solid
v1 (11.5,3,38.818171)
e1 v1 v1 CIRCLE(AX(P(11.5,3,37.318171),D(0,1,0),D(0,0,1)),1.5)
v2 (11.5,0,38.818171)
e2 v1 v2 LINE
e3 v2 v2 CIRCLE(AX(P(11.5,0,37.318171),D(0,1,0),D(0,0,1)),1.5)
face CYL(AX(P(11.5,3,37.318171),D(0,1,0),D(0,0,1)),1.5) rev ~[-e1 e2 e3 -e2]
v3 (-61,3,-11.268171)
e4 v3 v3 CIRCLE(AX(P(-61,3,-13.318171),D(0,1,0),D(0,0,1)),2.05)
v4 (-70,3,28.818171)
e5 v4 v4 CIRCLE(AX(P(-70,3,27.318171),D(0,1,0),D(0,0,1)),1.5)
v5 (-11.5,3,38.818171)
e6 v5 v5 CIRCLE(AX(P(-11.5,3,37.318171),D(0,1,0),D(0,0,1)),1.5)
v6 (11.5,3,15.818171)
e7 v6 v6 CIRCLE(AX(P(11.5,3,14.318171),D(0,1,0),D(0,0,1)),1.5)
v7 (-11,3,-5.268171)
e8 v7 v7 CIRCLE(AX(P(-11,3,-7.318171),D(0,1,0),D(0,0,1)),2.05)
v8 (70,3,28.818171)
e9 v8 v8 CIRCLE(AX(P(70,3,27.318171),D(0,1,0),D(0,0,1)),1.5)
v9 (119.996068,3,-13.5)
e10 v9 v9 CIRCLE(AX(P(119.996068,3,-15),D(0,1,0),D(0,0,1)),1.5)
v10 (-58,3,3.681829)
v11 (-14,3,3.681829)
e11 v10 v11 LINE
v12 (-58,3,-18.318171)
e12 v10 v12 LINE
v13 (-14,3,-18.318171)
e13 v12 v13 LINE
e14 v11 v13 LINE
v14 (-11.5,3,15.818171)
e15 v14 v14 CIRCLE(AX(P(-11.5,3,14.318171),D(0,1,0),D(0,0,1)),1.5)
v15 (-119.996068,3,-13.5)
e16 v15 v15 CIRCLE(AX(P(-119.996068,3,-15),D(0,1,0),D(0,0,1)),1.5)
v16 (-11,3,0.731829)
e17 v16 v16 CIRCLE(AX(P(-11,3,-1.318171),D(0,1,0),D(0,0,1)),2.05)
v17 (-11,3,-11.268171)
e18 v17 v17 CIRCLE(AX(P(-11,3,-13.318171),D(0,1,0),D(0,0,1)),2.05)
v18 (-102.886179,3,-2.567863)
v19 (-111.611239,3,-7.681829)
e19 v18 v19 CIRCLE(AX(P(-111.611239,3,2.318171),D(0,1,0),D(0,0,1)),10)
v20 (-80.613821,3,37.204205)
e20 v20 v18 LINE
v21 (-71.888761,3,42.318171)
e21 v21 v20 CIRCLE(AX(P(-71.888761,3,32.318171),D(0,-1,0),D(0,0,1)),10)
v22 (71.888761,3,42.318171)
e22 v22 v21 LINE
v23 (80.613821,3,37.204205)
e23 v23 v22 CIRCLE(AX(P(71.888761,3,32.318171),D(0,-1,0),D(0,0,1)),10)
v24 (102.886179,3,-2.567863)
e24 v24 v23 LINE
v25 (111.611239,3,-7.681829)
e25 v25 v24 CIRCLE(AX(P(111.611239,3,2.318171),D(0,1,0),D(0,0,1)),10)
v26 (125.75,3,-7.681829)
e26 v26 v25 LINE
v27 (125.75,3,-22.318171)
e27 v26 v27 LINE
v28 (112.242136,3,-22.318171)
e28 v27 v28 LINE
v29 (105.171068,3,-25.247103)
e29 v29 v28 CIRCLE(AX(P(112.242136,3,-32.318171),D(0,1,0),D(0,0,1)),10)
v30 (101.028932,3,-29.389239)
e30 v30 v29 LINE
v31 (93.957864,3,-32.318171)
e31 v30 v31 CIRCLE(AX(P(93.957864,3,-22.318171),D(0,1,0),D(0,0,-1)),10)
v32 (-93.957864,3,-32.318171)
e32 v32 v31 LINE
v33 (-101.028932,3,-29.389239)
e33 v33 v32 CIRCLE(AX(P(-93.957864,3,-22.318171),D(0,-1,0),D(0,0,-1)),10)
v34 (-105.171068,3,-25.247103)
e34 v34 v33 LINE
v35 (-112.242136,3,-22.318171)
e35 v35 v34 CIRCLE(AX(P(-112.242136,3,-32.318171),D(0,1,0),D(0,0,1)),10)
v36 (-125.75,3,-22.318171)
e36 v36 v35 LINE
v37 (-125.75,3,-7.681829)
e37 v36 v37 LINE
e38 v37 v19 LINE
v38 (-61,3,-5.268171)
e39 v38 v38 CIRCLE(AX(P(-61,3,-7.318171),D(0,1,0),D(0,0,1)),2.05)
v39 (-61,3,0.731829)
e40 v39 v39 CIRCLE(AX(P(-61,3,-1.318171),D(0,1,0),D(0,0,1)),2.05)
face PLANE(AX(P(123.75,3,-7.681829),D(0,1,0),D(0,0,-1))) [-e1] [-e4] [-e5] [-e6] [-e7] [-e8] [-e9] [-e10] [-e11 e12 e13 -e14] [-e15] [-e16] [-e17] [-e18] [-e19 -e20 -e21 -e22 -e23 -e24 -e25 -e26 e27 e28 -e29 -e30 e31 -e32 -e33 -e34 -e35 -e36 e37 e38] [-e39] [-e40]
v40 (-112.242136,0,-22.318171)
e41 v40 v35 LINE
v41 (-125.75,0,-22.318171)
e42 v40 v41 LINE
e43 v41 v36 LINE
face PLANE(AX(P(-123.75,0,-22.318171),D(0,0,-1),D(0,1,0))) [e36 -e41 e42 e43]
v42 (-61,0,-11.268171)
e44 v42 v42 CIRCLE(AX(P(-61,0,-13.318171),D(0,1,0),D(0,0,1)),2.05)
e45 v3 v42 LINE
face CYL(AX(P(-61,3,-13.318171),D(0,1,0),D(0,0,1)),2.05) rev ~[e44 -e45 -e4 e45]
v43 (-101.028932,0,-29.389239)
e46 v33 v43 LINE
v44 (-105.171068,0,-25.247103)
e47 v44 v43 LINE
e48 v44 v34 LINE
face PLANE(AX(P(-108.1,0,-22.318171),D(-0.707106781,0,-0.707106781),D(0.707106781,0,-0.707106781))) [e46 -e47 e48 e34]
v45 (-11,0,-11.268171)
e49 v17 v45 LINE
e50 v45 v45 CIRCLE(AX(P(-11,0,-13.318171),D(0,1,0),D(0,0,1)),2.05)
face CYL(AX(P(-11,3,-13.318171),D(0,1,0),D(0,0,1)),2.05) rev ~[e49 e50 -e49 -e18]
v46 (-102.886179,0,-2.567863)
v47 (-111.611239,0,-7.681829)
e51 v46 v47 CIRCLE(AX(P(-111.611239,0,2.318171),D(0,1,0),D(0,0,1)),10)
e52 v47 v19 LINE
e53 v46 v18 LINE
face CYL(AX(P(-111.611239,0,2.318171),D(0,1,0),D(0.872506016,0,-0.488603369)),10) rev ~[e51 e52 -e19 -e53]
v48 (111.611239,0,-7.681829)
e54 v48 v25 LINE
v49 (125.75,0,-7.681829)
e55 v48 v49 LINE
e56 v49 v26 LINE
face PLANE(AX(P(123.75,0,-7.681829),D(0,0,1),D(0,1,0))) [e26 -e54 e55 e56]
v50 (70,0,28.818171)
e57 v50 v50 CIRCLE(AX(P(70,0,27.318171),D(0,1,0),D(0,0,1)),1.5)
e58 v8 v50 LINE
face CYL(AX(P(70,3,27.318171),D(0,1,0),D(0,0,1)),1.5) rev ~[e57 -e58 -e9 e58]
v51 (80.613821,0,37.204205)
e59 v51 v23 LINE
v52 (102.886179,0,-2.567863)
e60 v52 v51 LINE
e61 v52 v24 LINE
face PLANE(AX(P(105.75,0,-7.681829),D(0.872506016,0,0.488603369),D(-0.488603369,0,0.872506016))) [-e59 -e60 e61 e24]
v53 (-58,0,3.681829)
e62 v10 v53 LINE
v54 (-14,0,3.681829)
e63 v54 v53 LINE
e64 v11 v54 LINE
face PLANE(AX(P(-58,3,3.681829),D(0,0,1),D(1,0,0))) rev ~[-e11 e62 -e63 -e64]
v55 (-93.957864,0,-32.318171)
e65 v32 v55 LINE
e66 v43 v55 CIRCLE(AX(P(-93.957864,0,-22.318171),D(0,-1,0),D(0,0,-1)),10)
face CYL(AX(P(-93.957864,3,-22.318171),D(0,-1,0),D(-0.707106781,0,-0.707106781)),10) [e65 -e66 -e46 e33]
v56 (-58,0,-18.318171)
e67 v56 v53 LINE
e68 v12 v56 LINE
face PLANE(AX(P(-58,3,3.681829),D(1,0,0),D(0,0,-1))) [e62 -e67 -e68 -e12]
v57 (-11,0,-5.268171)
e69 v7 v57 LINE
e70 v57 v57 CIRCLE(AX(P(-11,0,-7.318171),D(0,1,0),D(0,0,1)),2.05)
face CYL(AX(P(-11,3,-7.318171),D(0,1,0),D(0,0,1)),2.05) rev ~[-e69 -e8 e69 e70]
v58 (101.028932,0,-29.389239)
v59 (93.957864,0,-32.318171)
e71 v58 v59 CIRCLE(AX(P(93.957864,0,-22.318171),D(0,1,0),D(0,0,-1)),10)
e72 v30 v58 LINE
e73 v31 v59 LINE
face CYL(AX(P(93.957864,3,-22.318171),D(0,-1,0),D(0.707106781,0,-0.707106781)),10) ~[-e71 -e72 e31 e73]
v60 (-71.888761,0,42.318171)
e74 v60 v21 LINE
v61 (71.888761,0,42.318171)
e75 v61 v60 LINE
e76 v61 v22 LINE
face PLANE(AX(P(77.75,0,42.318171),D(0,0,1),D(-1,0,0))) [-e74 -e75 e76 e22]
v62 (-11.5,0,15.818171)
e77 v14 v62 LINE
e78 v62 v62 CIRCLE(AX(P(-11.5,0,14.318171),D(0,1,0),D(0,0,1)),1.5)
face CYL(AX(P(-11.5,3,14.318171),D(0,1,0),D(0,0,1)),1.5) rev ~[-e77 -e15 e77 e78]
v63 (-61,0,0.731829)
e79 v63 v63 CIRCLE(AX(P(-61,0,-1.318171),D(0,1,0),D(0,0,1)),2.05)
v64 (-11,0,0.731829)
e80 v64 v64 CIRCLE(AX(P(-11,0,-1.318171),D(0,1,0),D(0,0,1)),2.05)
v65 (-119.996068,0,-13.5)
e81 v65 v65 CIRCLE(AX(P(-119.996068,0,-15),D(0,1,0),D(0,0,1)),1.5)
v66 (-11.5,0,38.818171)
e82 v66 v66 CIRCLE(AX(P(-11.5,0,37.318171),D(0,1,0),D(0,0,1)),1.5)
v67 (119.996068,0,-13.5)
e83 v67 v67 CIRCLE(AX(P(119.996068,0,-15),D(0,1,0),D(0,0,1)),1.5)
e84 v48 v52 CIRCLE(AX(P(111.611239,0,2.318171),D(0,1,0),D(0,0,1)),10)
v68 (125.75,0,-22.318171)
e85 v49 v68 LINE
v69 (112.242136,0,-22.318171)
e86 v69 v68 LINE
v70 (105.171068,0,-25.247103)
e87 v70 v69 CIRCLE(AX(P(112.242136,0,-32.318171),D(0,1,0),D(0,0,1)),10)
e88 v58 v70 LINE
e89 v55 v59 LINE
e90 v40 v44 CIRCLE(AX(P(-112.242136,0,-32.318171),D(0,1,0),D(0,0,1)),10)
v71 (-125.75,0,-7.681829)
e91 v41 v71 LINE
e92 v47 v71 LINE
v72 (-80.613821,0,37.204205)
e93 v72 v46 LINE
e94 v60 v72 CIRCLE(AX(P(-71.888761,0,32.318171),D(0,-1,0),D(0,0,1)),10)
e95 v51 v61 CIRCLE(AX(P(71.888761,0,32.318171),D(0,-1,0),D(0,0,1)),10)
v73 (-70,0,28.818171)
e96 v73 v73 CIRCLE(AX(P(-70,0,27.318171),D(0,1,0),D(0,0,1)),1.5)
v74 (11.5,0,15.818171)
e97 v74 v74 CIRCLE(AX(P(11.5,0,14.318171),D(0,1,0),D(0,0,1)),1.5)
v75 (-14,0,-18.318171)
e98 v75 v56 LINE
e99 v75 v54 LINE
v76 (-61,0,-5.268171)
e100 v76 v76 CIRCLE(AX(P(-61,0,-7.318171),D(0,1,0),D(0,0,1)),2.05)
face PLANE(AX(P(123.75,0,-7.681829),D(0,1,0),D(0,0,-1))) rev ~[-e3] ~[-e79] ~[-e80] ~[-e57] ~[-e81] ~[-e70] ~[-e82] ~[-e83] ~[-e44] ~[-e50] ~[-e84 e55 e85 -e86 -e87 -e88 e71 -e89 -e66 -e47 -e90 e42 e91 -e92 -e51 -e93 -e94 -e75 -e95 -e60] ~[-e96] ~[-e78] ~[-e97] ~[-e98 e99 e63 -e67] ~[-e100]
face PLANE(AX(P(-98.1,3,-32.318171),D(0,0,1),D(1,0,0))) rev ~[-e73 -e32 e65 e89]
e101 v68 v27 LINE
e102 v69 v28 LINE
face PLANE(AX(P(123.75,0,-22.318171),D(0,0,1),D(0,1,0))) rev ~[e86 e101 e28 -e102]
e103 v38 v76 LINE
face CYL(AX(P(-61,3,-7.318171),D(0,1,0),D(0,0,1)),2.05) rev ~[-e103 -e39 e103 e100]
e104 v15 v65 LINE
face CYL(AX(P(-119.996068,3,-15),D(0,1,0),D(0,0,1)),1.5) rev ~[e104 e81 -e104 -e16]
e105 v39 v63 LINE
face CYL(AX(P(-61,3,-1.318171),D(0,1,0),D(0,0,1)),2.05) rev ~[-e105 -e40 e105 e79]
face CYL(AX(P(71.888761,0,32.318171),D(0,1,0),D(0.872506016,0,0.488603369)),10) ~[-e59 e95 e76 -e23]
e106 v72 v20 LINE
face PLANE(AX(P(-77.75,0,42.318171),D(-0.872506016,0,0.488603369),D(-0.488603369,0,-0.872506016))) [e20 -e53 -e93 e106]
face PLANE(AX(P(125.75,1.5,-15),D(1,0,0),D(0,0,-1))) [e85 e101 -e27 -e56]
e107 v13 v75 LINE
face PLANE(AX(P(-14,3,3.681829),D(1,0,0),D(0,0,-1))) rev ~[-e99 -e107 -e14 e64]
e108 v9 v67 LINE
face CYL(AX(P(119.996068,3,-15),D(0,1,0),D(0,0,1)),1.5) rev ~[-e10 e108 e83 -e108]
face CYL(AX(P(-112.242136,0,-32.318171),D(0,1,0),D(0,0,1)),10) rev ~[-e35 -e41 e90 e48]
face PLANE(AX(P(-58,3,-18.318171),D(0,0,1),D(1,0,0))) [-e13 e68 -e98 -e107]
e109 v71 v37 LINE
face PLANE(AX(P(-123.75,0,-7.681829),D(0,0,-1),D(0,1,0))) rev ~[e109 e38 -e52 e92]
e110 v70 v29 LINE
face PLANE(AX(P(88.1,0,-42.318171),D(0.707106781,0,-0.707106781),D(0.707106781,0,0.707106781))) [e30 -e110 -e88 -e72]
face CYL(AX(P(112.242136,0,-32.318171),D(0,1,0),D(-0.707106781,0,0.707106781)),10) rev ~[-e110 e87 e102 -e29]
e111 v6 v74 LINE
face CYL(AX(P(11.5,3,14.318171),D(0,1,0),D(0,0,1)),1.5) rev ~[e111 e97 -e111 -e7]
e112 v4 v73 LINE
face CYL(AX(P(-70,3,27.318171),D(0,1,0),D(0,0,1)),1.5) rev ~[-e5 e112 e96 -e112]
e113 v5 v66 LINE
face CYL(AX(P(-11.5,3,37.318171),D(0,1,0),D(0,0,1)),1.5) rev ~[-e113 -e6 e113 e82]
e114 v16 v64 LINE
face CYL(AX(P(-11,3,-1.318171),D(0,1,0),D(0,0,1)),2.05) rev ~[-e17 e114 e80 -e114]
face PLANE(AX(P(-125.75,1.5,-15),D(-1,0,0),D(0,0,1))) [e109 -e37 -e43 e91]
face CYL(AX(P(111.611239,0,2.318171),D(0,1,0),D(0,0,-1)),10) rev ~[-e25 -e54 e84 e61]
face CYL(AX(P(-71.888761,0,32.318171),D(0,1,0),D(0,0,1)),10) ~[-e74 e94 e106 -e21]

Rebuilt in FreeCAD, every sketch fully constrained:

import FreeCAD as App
import Part
import Sketcher

V = App.Vector
Q = App.Units.Quantity


def edges_at(feature, points):
    """Names of the edges that pass closest to the given points."""
    edges = feature.Shape.Edges
    near = lambda p: min(range(len(edges)), key=lambda i: edges[i].distToShape(Part.Vertex(*p))[0])
    return sorted({f"Edge{near(p) + 1}" for p in points})


def add_polygon(sketch, points):
    """Adds a closed chain of lines whose ends are joined by coincident constraints."""
    first, n = sketch.GeometryCount, len(points)
    for a, b in zip(points, points[1:] + points[:1]):
        sketch.addGeometry(Part.LineSegment(App.Vector(*a, 0), App.Vector(*b, 0)), False)
    for i in range(n):
        sketch.addConstraint(Sketcher.Constraint("Coincident", first + i, 2, first + (i + 1) % n, 1))

doc = App.newDocument("Part")
body = doc.addObject("PartDesign::Body", "Body")

sketch1 = body.newObject("Sketcher::SketchObject", "Sketch")
sketch1.AttachmentSupport = (doc.getObject("XZ_Plane"), [""])
sketch1.MapMode = "FlatFace"
add_polygon(sketch1, [(88.1, -42.318171), (-88.1, -42.318171), (-108.1, -22.318171), (-127.75, -22.318171), (-127.75, -7.681829), (-105.75, -7.681829), (-77.75, 42.318171), (77.75, 42.318171), (105.75, -7.681829), (127.75, -7.681829), (127.75, -22.318171), (108.1, -22.318171)])
sketch1.addConstraint([
    Sketcher.Constraint("Horizontal", 0),
    Sketcher.Constraint("Horizontal", 2),
    Sketcher.Constraint("Vertical", 3),
    Sketcher.Constraint("Horizontal", 4),
    Sketcher.Constraint("Horizontal", 6),
    Sketcher.Constraint("Horizontal", 8),
    Sketcher.Constraint("Vertical", 9),
    Sketcher.Constraint("Horizontal", 10),
    Sketcher.Constraint("Symmetric", 4, 2, 7, 2, -2),
    Sketcher.Constraint("Symmetric", 2, 2, 9, 2, -2),
    Sketcher.Constraint("Perpendicular", 1, 11),
    Sketcher.Constraint("Equal", 2, 10),
    Sketcher.Constraint("Equal", 5, 7),
    Sketcher.Constraint("Equal", 1, 11),
    Sketcher.Constraint("DistanceX", 4, 1, 4, 2, Q("22 mm")),
    Sketcher.Constraint("DistanceX", 0, 2, 0, 1, Q("176.2 mm")),
    Sketcher.Constraint("DistanceX", 6, 1, 6, 2, Q("155.5 mm")),
    Sketcher.Constraint("DistanceX", 1, 2, 0, 2, Q("20 mm")),
    Sketcher.Constraint("DistanceX", 4, 2, 5, 2, Q("28 mm")),
    Sketcher.Constraint("DistanceY", 4, 2, 5, 2, Q("50 mm")),
    Sketcher.Constraint("DistanceY", 3, 1, 3, 2, Q("14.636342 mm")),
    Sketcher.Constraint("DistanceY", 0, 2, -1, 1, Q("42.318171 mm")),
])
pad1 = body.newObject("PartDesign::Pad", "Pad")
pad1.Profile = sketch1
pad1.Length = 3
pad1.Reversed = True
doc.recompute()

fillet = body.newObject("PartDesign::Fillet", "Fillet")
fillet.Base = (pad1, edges_at(pad1, [
    (-88.1, 1.5, -42.318),
    (88.1, 1.5, -42.318),
    (108.1, 1.5, -22.318),
    (105.75, 1.5, -7.682),
    (77.75, 1.5, 42.318),
    (-77.75, 1.5, 42.318),
    (-105.75, 1.5, -7.682),
    (-108.1, 1.5, -22.318),
]))
fillet.Radius = 10

sketch2 = body.newObject("Sketcher::SketchObject", "Sketch001")
sketch2.AttachmentSupport = (doc.getObject("XZ_Plane"), [""])
sketch2.MapMode = "FlatFace"
sketch2.AttachmentOffset = App.Placement(V(0, 0, -3), App.Rotation())
sketch2.addGeometry(Part.Circle(V(70, 27.318171, 0), V(0, 0, 1), 1.5), False)
sketch2.addGeometry(Part.Circle(V(-70, 27.318171, 0), V(0, 0, 1), 1.5), False)
sketch2.addGeometry(Part.Circle(V(-119.996068, -15, 0), V(0, 0, 1), 1.5), False)
sketch2.addGeometry(Part.Circle(V(119.996068, -15, 0), V(0, 0, 1), 1.5), False)
sketch2.addGeometry(Part.Circle(V(-11.5, 14.318171, 0), V(0, 0, 1), 1.5), False)
sketch2.addGeometry(Part.Circle(V(11.5, 14.318171, 0), V(0, 0, 1), 1.5), False)
sketch2.addGeometry(Part.Circle(V(-11.5, 37.318171, 0), V(0, 0, 1), 1.5), False)
sketch2.addGeometry(Part.Circle(V(11.5, 37.318171, 0), V(0, 0, 1), 1.5), False)
sketch2.addGeometry(Part.Circle(V(-61, -7.318171, 0), V(0, 0, 1), 2.05), False)
sketch2.addGeometry(Part.Circle(V(-11, -7.318171, 0), V(0, 0, 1), 2.05), False)
sketch2.addGeometry(Part.Circle(V(-61, -13.318171, 0), V(0, 0, 1), 2.05), False)
sketch2.addGeometry(Part.Circle(V(-61, -1.318171, 0), V(0, 0, 1), 2.05), False)
sketch2.addGeometry(Part.Circle(V(-11, -13.318171, 0), V(0, 0, 1), 2.05), False)
sketch2.addGeometry(Part.Circle(V(-11, -1.318171, 0), V(0, 0, 1), 2.05), False)
add_polygon(sketch2, [(-57, -17.318171), (-57, 2.681829), (-15, 2.681829), (-15, -17.318171)])
sketch2.addConstraint([
    Sketcher.Constraint("Vertical", 14),
    Sketcher.Constraint("Horizontal", 15),
    Sketcher.Constraint("Vertical", 16),
    Sketcher.Constraint("Horizontal", 17),
    Sketcher.Constraint("Equal", 0, 1),
    Sketcher.Constraint("Equal", 1, 2),
    Sketcher.Constraint("Equal", 2, 3),
    Sketcher.Constraint("Equal", 3, 4),
    Sketcher.Constraint("Equal", 4, 5),
    Sketcher.Constraint("Equal", 5, 6),
    Sketcher.Constraint("Equal", 6, 7),
    Sketcher.Constraint("Equal", 8, 9),
    Sketcher.Constraint("Equal", 9, 10),
    Sketcher.Constraint("Equal", 10, 11),
    Sketcher.Constraint("Equal", 11, 12),
    Sketcher.Constraint("Equal", 12, 13),
    Sketcher.Constraint("Symmetric", 0, 3, 1, 3, -2),
    Sketcher.Constraint("Symmetric", 2, 3, 3, 3, -2),
    Sketcher.Constraint("Symmetric", 4, 3, 5, 3, -2),
    Sketcher.Constraint("Symmetric", 6, 3, 7, 3, -2),
    Sketcher.Constraint("Horizontal", 8, 3, 9, 3),
    Sketcher.Constraint("Horizontal", 10, 3, 12, 3),
    Sketcher.Constraint("Horizontal", 11, 3, 13, 3),
    Sketcher.Constraint("Vertical", 4, 3, 6, 3),
    Sketcher.Constraint("Vertical", 8, 3, 10, 3),
    Sketcher.Constraint("Vertical", 10, 3, 11, 3),
    Sketcher.Constraint("Vertical", 9, 3, 12, 3),
    Sketcher.Constraint("Vertical", 12, 3, 13, 3),
    Sketcher.Constraint("Diameter", 0, Q("3 mm")),
    Sketcher.Constraint("Diameter", 8, Q("4.1 mm")),
    Sketcher.Constraint("DistanceX", 15, 1, 15, 2, Q("42 mm")),
    Sketcher.Constraint("DistanceY", 14, 1, 14, 2, Q("20 mm")),
    Sketcher.Constraint("DistanceX", -1, 1, 0, 3, Q("70 mm")),
    Sketcher.Constraint("DistanceY", 2, 3, -1, 1, Q("15 mm")),
    Sketcher.Constraint("DistanceX", 8, 3, -1, 1, Q("61 mm")),
    Sketcher.Constraint("DistanceX", 9, 3, -1, 1, Q("11 mm")),
    Sketcher.Constraint("DistanceX", 14, 2, -1, 1, Q("57 mm")),
    Sketcher.Constraint("DistanceY", 4, 3, 1, 3, Q("13 mm")),
    Sketcher.Constraint("DistanceX", 4, 3, 5, 3, Q("23 mm")),
    Sketcher.Constraint("DistanceY", 4, 3, 6, 3, Q("23 mm")),
    Sketcher.Constraint("DistanceY", 10, 3, 8, 3, Q("6 mm")),
    Sketcher.Constraint("DistanceY", 8, 3, 11, 3, Q("6 mm")),
    Sketcher.Constraint("DistanceY", 11, 3, 14, 2, Q("4 mm")),
    Sketcher.Constraint("DistanceY", -1, 1, 0, 3, Q("27.318171 mm")),
    Sketcher.Constraint("DistanceY", 8, 3, -1, 1, Q("7.318171 mm")),
    Sketcher.Constraint("DistanceX", 2, 3, -1, 1, Q("119.996068 mm")),
])
pocket1 = body.newObject("PartDesign::Pocket", "Pocket")
pocket1.Profile = sketch2
pocket1.Type = "ThroughAll"
pocket1.Reversed = True

sketch3 = body.newObject("Sketcher::SketchObject", "Sketch002")
sketch3.AttachmentSupport = (doc.getObject("XZ_Plane"), [""])
sketch3.MapMode = "FlatFace"
sketch3.AttachmentOffset = App.Placement(V(0, 0, -3), App.Rotation())
add_polygon(sketch3, [(-127.75, -22.318171), (-127.75, -7.681829), (-123.75, -7.681829), (-123.75, -22.318171)])
add_polygon(sketch3, [(123.75, -22.318171), (123.75, -7.681829), (127.75, -7.681829), (127.75, -22.318171)])
sketch3.addConstraint([
    Sketcher.Constraint("Vertical", 0),
    Sketcher.Constraint("Horizontal", 1),
    Sketcher.Constraint("Vertical", 2),
    Sketcher.Constraint("Horizontal", 3),
    Sketcher.Constraint("Vertical", 4),
    Sketcher.Constraint("Horizontal", 5),
    Sketcher.Constraint("Vertical", 6),
    Sketcher.Constraint("Horizontal", 7),
    Sketcher.Constraint("Symmetric", 1, 2, 4, 2, -2),
    Sketcher.Constraint("Symmetric", 3, 2, 6, 2, -2),
    Sketcher.Constraint("DistanceX", 1, 1, 1, 2, Q("4 mm")),
    Sketcher.Constraint("DistanceX", 1, 2, 4, 2, Q("247.5 mm")),
    Sketcher.Constraint("DistanceY", 0, 1, 0, 2, Q("14.636342 mm")),
    Sketcher.Constraint("DistanceY", 0, 2, -1, 1, Q("7.681829 mm")),
])
pocket2 = body.newObject("PartDesign::Pocket", "Pocket001")
pocket2.Profile = sketch3
pocket2.Type = "ThroughAll"
pocket2.Reversed = True

sketch4 = body.newObject("Sketcher::SketchObject", "Sketch003")
sketch4.AttachmentSupport = (doc.getObject("XZ_Plane"), [""])
sketch4.MapMode = "FlatFace"
sketch4.AttachmentOffset = App.Placement(V(0, 0, -3), App.Rotation())
add_polygon(sketch4, [(-58, -18.318171), (-58, 3.681829), (-14, 3.681829), (-14, -18.318171)])
sketch4.addConstraint([
    Sketcher.Constraint("Vertical", 0),
    Sketcher.Constraint("Horizontal", 1),
    Sketcher.Constraint("Vertical", 2),
    Sketcher.Constraint("Horizontal", 3),
    Sketcher.Constraint("DistanceX", 1, 1, 1, 2, Q("44 mm")),
    Sketcher.Constraint("DistanceY", 0, 1, 0, 2, Q("22 mm")),
    Sketcher.Constraint("DistanceX", 0, 2, -1, 1, Q("58 mm")),
    Sketcher.Constraint("DistanceY", -1, 1, 0, 2, Q("3.681829 mm")),
])
pocket3 = body.newObject("PartDesign::Pocket", "Pocket002")
pocket3.Profile = sketch4
pocket3.Type = "ThroughAll"
pocket3.Reversed = True

sketch5 = body.newObject("Sketcher::SketchObject", "Sketch004")
sketch5.AttachmentSupport = (doc.getObject("XZ_Plane"), [""])
sketch5.MapMode = "FlatFace"
sketch5.AttachmentOffset = App.Placement(V(0, 0, -3), App.Rotation())
add_polygon(sketch5, [(-63.75, -42.318171), (-38.75, -32.318171), (38.75, -32.318171), (63.75, -42.318171)])
sketch5.addConstraint([
    Sketcher.Constraint("Horizontal", 1),
    Sketcher.Constraint("Horizontal", 3),
    Sketcher.Constraint("Equal", 0, 2),
    Sketcher.Constraint("DistanceX", 1, 1, 1, 2, Q("77.5 mm")),
    Sketcher.Constraint("DistanceX", 3, 2, 3, 1, Q("127.5 mm")),
    Sketcher.Constraint("DistanceY", 2, 2, 1, 2, Q("10 mm")),
    Sketcher.Constraint("DistanceX", 0, 2, -1, 1, Q("38.75 mm")),
    Sketcher.Constraint("DistanceY", 0, 2, -1, 1, Q("32.318171 mm")),
])
pocket4 = body.newObject("PartDesign::Pocket", "Pocket003")
pocket4.Profile = sketch5
pocket4.Type = "ThroughAll"
pocket4.Reversed = True
doc.recompute()

fillet2 = body.newObject("PartDesign::Fillet", "Fillet001")
fillet2.Base = (pocket4, edges_at(pocket4, [
    (-63.75, 1.5, -42.318),
    (63.75, 1.5, -42.318),
    (38.75, 1.5, -32.318),
    (-38.75, 1.5, -32.318),
]))
fillet2.Radius = 20

sketch6 = body.newObject("Sketcher::SketchObject", "Sketch005")
sketch6.AttachmentSupport = (doc.getObject("XZ_Plane"), [""])
sketch6.MapMode = "FlatFace"
sketch6.AttachmentOffset = App.Placement(V(0, 0, -3), App.Rotation())
add_polygon(sketch6, [(-98.1, -32.318171), (105.427935, -32.318171), (105.427935, -50.604426), (-98.1, -50.604426)])
sketch6.addConstraint([
    Sketcher.Constraint("Horizontal", 0),
    Sketcher.Constraint("Vertical", 1),
    Sketcher.Constraint("Horizontal", 2),
    Sketcher.Constraint("Vertical", 3),
    Sketcher.Constraint("DistanceX", 2, 2, -1, 1, Q("98.1 mm")),
    Sketcher.Constraint("DistanceX", 0, 1, 0, 2, Q("203.527935 mm")),
    Sketcher.Constraint("DistanceY", 1, 2, 1, 1, Q("18.286255 mm")),
    Sketcher.Constraint("DistanceY", 0, 2, -1, 1, Q("32.318171 mm")),
])
pocket5 = body.newObject("PartDesign::Pocket", "Pocket004")
pocket5.Profile = sketch6
pocket5.Length = 10
pocket5.Reversed = True
doc.recompute()

fillet3 = body.newObject("PartDesign::Fillet", "Fillet002")
fillet3.Base = (pocket5, edges_at(pocket5, [(98.1, 1.5, -32.318), (-98.1, 1.5, -32.318)]))
fillet3.Radius = 10

sketch7 = body.newObject("Sketcher::SketchObject", "Sketch006")
sketch7.AttachmentSupport = (doc.getObject("YZ_Plane"), [""])
sketch7.MapMode = "FlatFace"
sketch7.AttachmentOffset = App.Placement(V(0, 0, -123.75), App.Rotation())
add_polygon(sketch7, [(3, -22.318171), (0, -22.318171), (0, -7.681829), (3, -7.681829)])
sketch7.addConstraint([
    Sketcher.Constraint("Horizontal", 0),
    Sketcher.Constraint("Vertical", 1),
    Sketcher.Constraint("Horizontal", 2),
    Sketcher.Constraint("Vertical", 3),
    Sketcher.Constraint("PointOnObject", 0, 2, -2),
    Sketcher.Constraint("DistanceX", 0, 2, 0, 1, Q("3 mm")),
    Sketcher.Constraint("DistanceY", 1, 1, 1, 2, Q("14.636342 mm")),
    Sketcher.Constraint("DistanceY", 0, 2, -1, 1, Q("22.318171 mm")),
])
pad2 = body.newObject("PartDesign::Pad", "Pad001")
pad2.Profile = sketch7
pad2.Length = 2
pad2.Reversed = True

sketch8 = body.newObject("Sketcher::SketchObject", "Sketch007")
sketch8.AttachmentSupport = (doc.getObject("YZ_Plane"), [""])
sketch8.MapMode = "FlatFace"
sketch8.AttachmentOffset = App.Placement(V(0, 0, 123.75), App.Rotation())
add_polygon(sketch8, [(3, -7.681829), (0, -7.681829), (0, -22.318171), (3, -22.318171)])
sketch8.addConstraint([
    Sketcher.Constraint("Horizontal", 0),
    Sketcher.Constraint("Vertical", 1),
    Sketcher.Constraint("Horizontal", 2),
    Sketcher.Constraint("Vertical", 3),
    Sketcher.Constraint("PointOnObject", 0, 2, -2),
    Sketcher.Constraint("DistanceX", 0, 2, 0, 1, Q("3 mm")),
    Sketcher.Constraint("DistanceY", 1, 2, 1, 1, Q("14.636342 mm")),
    Sketcher.Constraint("DistanceY", 0, 2, -1, 1, Q("7.681829 mm")),
])
pad3 = body.newObject("PartDesign::Pad", "Pad002")
pad3.Profile = sketch8
pad3.Length = 2

doc.recompute()
